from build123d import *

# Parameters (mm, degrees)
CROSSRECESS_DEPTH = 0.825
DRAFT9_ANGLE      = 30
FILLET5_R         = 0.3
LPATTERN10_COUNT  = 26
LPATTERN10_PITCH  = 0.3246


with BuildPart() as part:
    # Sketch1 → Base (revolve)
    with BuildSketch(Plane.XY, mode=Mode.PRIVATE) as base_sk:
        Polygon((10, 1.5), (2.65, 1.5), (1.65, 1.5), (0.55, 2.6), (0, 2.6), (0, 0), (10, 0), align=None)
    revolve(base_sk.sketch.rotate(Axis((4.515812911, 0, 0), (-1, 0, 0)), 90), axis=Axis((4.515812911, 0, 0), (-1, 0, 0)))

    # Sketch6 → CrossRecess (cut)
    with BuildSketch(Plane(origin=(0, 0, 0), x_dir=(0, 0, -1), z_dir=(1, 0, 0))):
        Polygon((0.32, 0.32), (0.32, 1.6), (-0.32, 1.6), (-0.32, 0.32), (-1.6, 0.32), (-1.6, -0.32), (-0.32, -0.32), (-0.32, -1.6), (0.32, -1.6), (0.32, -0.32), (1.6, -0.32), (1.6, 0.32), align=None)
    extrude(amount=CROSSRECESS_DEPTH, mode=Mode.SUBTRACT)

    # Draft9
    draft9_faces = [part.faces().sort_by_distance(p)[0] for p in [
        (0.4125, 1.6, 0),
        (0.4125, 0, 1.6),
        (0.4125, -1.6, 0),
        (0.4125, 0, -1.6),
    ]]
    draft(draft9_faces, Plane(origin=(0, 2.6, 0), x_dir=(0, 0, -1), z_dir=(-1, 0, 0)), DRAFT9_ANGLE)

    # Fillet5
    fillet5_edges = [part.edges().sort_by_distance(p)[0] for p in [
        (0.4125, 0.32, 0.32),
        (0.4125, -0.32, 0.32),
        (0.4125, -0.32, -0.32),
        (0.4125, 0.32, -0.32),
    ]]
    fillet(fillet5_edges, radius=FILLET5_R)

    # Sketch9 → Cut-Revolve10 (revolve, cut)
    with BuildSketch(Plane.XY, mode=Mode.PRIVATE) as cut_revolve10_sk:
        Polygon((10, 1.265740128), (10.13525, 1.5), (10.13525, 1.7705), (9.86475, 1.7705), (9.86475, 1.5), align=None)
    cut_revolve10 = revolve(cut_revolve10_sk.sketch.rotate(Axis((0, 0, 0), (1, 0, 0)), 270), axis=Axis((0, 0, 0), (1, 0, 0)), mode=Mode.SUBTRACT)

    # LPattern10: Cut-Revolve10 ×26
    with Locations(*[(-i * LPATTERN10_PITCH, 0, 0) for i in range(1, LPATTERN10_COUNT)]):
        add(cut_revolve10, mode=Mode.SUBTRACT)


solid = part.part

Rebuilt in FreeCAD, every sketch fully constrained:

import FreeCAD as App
import Part
import Sketcher

V = App.Vector
Q = App.Units.Quantity


def edges_at(feature, points):
    """Names of the edges that pass closest to the given points."""
    edges = feature.Shape.Edges
    near = lambda p: min(range(len(edges)), key=lambda i: edges[i].distToShape(Part.Vertex(*p))[0])
    return sorted({f"Edge{near(p) + 1}" for p in points})


def faces_at(feature, points):
    """Names of the faces that lie closest to the given points."""
    faces = feature.Shape.Faces
    near = lambda p: min(range(len(faces)), key=lambda i: faces[i].distToShape(Part.Vertex(*p))[0])
    return sorted({f"Face{near(p) + 1}" for p in points})


def add_polygon(sketch, points):
    """Adds a closed chain of lines whose ends are joined by coincident constraints."""
    first, n = sketch.GeometryCount, len(points)
    for a, b in zip(points, points[1:] + points[:1]):
        sketch.addGeometry(Part.LineSegment(App.Vector(*a, 0), App.Vector(*b, 0)), False)
    for i in range(n):
        sketch.addConstraint(Sketcher.Constraint("Coincident", first + i, 2, first + (i + 1) % n, 1))

doc = App.newDocument("Part")
body = doc.addObject("PartDesign::Body", "Body")

sketch1 = body.newObject("Sketcher::SketchObject", "Sketch")
sketch1.AttachmentSupport = (doc.getObject("XY_Plane"), [""])
sketch1.MapMode = "FlatFace"
add_polygon(sketch1, [(10, 1.5), (1.6, 1.5), (0.6, 2.6), (0, 2.6), (0, 0), (10, 0)])
sketch1.addConstraint([
    Sketcher.Constraint("Horizontal", 0),
    Sketcher.Constraint("Horizontal", 2),
    Sketcher.Constraint("Vertical", 3),
    Sketcher.Constraint("Horizontal", 4),
    Sketcher.Constraint("Vertical", 5),
    Sketcher.Constraint("Coincident", 3, 2, -1, 1),
    Sketcher.Constraint("DistanceX", 4, 1, 4, 2, 10.0),
    Sketcher.Constraint("Angle", 1, Q("135 deg")),
    Sketcher.Constraint("DistanceY", 3, 2, 3, 1, 2.6),
    Sketcher.Constraint("DistanceY", 5, 1, 5, 2, 1.5),
    Sketcher.Constraint("DistanceX", 0, 2, 0, 1, 8.35),
])
revolution = body.newObject("PartDesign::Revolution", "Revolution")
revolution.Profile = sketch1
revolution.ReferenceAxis = (sketch1, ["H_Axis"])
revolution.Angle = 360

sketch2 = body.newObject("Sketcher::SketchObject", "Sketch001")
sketch2.AttachmentSupport = (doc.getObject("YZ_Plane"), [""])
sketch2.MapMode = "FlatFace"
add_polygon(sketch2, [(0.3, -0.3), (1.6, -0.3), (1.6, 0.3), (0.3, 0.3), (0.3, 1.6), (-0.3, 1.6), (-0.3, 0.3), (-1.6, 0.3), (-1.6, -0.3), (-0.3, -0.3), (-0.3, -1.6), (0.3, -1.6)])
sketch2.addConstraint([
    Sketcher.Constraint("Horizontal", 0),
    Sketcher.Constraint("Vertical", 1),
    Sketcher.Constraint("Horizontal", 2),
    Sketcher.Constraint("Vertical", 3),
    Sketcher.Constraint("Horizontal", 4),
    Sketcher.Constraint("Vertical", 5),
    Sketcher.Constraint("Horizontal", 6),
    Sketcher.Constraint("Vertical", 7),
    Sketcher.Constraint("Horizontal", 8),
    Sketcher.Constraint("Vertical", 9),
    Sketcher.Constraint("Horizontal", 10),
    Sketcher.Constraint("Vertical", 11),
    Sketcher.Constraint("Symmetric", 0, 2, 6, 2, -1, 1),
    Sketcher.Constraint("Symmetric", 2, 2, 8, 2, -1, 1),
    Sketcher.Constraint("Symmetric", 4, 2, 10, 2, -1, 1),
    Sketcher.Constraint("Symmetric", 2, 2, 5, 2, -2),
    Sketcher.Constraint("Equal", 10, 1),
    Sketcher.Constraint("Equal", 8, 3),
    Sketcher.Constraint("DistanceX", 0, 1, 0, 2, 1.28),
    Sketcher.Constraint("DistanceX", 4, 2, 4, 1, 0.64),
])
pocket1 = body.newObject("PartDesign::Pocket", "Pocket")
pocket1.Profile = sketch2
pocket1.Length = 0.825
pocket1.Reversed = True
doc.recompute()

draft = body.newObject("PartDesign::Draft", "Draft")
draft.Base = (pocket1, faces_at(pocket1, [
    (0.412, 1.6, 0),
    (0.412, 0, 1.6),
    (0.412, -1.6, 0),
    (0.412, 0, -1.6),
]))
draft.NeutralPlane = (doc.getObject("YZ_Plane"), [""])
draft.Angle = 30
draft.Reversed = True
doc.recompute()

fillet = body.newObject("PartDesign::Fillet", "Fillet")
fillet.Base = (draft, edges_at(draft, [
    (0.412, 0.32, 0.32),
    (0.412, -0.32, 0.32),
    (0.412, -0.32, -0.32),
    (0.412, 0.32, -0.32),
]))
fillet.Radius = 0.3

sketch3 = body.newObject("Sketcher::SketchObject", "Sketch002")
sketch3.AttachmentSupport = (doc.getObject("XY_Plane"), [""])
sketch3.MapMode = "FlatFace"
add_polygon(sketch3, [(10, 1.27), (10.14, 1.5), (10.14, 1.77), (9.86, 1.77), (9.86, 1.5)])
sketch3.addConstraint([
    Sketcher.Constraint("Vertical", 1),
    Sketcher.Constraint("Horizontal", 2),
    Sketcher.Constraint("Vertical", 3),
    Sketcher.Constraint("Horizontal", 0, 2, 3, 2),
    Sketcher.Constraint("Equal", 2, 1),
    Sketcher.Constraint("Equal", 0, 4),
    Sketcher.Constraint("Angle", 0, Q("60 deg")),
    Sketcher.Constraint("DistanceX", -1, 1, 4, 2, 10.0),
    Sketcher.Constraint("DistanceY", -1, 1, 0, 2, 1.5),
    Sketcher.Constraint("DistanceX", 2, 2, 2, 1, 0.2705),
])
groove = body.newObject("PartDesign::Groove", "Groove")
groove.Profile = sketch3
groove.ReferenceAxis = (sketch3, ["H_Axis"])
groove.Angle = 360
doc.recompute()

linearpattern = body.newObject("PartDesign::LinearPattern", "LinearPattern")
linearpattern.Originals = [groove]
linearpattern.Direction = (doc.getObject("X_Axis"), [""])
linearpattern.Mode = "offset"
linearpattern.Offset = 0.3246
linearpattern.Occurrences = 26
linearpattern.Reversed = True
body.Tip = linearpattern

doc.recompute()
